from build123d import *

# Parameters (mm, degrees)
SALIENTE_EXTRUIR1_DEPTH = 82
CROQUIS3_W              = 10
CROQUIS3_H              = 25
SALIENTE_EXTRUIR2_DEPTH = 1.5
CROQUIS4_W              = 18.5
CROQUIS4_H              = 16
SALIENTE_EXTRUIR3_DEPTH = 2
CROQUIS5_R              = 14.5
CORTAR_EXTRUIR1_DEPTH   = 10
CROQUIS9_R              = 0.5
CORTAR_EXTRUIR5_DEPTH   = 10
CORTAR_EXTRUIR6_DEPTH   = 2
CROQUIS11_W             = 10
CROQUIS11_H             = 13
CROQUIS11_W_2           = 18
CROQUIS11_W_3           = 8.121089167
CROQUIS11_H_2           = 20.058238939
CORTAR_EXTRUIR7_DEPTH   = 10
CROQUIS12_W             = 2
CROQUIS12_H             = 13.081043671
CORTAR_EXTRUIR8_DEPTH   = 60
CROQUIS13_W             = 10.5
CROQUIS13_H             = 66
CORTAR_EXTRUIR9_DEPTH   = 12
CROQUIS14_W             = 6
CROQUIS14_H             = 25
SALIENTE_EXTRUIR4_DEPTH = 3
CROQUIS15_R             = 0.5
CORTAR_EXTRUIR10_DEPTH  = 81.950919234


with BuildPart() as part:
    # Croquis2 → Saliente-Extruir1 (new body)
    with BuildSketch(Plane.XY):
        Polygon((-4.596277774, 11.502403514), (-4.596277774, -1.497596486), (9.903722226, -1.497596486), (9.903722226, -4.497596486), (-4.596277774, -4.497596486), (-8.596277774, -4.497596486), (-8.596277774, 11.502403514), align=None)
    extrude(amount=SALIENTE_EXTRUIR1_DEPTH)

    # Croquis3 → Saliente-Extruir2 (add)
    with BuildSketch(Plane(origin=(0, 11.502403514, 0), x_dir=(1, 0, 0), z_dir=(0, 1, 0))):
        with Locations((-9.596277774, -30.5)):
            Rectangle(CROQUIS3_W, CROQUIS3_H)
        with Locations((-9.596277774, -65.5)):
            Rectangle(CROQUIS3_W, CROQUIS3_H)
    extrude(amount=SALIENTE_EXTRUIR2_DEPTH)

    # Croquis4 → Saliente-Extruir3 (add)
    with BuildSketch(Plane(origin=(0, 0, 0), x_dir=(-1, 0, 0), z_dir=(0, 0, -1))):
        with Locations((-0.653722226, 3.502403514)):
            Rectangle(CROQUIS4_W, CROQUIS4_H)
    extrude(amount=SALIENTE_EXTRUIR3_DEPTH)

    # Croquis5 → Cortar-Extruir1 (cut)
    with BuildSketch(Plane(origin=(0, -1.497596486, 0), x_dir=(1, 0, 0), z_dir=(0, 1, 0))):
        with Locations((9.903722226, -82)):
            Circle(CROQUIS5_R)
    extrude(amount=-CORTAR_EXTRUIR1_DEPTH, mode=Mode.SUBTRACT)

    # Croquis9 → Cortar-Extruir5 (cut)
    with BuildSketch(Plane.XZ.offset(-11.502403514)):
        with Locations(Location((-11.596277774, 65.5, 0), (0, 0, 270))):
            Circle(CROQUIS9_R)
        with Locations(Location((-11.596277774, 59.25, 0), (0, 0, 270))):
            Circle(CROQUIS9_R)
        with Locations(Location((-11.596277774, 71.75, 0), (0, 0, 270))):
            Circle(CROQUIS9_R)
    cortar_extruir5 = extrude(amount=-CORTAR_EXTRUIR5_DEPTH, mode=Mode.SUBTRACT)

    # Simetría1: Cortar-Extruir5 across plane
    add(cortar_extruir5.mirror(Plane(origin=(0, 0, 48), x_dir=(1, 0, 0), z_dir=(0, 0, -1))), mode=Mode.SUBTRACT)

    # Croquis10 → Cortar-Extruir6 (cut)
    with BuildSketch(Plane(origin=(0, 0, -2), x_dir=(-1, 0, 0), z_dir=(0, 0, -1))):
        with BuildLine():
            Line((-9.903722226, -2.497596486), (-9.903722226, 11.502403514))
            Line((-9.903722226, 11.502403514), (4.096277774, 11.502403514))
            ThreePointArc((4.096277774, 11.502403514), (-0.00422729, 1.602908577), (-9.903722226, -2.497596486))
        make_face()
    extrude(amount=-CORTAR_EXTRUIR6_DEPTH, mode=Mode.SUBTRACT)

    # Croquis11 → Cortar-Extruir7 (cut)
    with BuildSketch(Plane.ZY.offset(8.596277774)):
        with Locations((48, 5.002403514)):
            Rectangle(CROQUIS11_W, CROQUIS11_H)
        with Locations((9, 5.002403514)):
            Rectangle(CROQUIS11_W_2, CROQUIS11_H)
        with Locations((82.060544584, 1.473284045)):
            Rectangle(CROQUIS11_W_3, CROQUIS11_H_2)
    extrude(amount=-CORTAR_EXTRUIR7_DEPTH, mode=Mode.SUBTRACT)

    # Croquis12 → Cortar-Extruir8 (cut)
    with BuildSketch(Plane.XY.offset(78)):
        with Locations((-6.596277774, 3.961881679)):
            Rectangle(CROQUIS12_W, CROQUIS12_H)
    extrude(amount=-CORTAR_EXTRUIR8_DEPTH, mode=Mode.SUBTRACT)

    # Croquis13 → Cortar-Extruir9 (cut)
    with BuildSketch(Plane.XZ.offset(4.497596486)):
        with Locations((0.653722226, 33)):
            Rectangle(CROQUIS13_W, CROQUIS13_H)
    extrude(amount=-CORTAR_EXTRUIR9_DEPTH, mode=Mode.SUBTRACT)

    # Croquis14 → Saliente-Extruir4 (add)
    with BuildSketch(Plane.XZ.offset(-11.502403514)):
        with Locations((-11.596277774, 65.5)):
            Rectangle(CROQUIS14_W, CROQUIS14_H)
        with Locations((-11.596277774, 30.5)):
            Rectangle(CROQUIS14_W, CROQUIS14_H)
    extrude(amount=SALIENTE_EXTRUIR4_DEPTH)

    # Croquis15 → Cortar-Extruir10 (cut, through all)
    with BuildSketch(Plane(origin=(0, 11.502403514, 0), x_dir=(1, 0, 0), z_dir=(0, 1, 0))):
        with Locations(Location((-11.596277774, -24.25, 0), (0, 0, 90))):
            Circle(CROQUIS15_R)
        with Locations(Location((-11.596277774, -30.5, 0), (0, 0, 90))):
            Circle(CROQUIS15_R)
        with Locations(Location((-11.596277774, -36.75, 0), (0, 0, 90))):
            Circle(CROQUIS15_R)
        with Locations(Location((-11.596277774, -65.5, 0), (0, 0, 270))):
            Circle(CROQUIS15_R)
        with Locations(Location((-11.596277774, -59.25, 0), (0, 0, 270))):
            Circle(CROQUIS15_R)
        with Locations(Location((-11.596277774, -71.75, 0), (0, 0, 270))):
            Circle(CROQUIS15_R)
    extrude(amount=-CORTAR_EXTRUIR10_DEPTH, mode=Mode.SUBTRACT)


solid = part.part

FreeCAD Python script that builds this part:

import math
import FreeCAD as App
import Part
import Sketcher
from FreeCAD import Vector


def add_polygon(sketch, points):
    """Adds a closed chain of lines whose ends are joined by coincident constraints."""
    first, n = sketch.GeometryCount, len(points)
    for a, b in zip(points, points[1:] + points[:1]):
        sketch.addGeometry(Part.LineSegment(App.Vector(*a, 0), App.Vector(*b, 0)), False)
    for i in range(n):
        sketch.addConstraint(Sketcher.Constraint("Coincident", first + i, 2, first + (i + 1) % n, 1))

doc = App.newDocument("Part")
body = doc.addObject("PartDesign::Body", "Body")

# Sketch on XY plane
sketch1 = body.newObject("Sketcher::SketchObject", "Sketch")
sketch1.AttachmentSupport = (doc.getObject("XY_Plane"), [""])
sketch1.MapMode = "FlatFace"
add_polygon(sketch1, [(-4.6, -1.5), (-4.6, 11.5), (-8.6, 11.5), (-8.6, -4.5), (9.9, -4.5), (9.9, -1.5)])  # lines 0-5
sketch1.addConstraint(Sketcher.Constraint("Vertical", 0))
sketch1.addConstraint(Sketcher.Constraint("Horizontal", 1))
sketch1.addConstraint(Sketcher.Constraint("Vertical", 2))
sketch1.addConstraint(Sketcher.Constraint("Horizontal", 3))
sketch1.addConstraint(Sketcher.Constraint("Vertical", 4))
sketch1.addConstraint(Sketcher.Constraint("Horizontal", 5))
sketch1.addConstraint(Sketcher.Constraint("DistanceX", 1, 2, 1, 1, 4.0))
sketch1.addConstraint(Sketcher.Constraint("DistanceY", 0, 1, 0, 2, 13.0))
sketch1.addConstraint(Sketcher.Constraint("DistanceY", 2, 2, 2, 1, 16.0))
sketch1.addConstraint(Sketcher.Constraint("DistanceX", 3, 1, 3, 2, 18.5))
sketch1.addConstraint(Sketcher.Constraint("DistanceX", 0, 2, -1, 1, 4.596278))
sketch1.addConstraint(Sketcher.Constraint("DistanceY", -1, 1, 0, 2, 11.502404))
pad1 = body.newObject("PartDesign::Pad", "Pad")
pad1.Profile = sketch1
pad1.Length = 82

# Sketch on XZ plane
sketch2 = body.newObject("Sketcher::SketchObject", "Sketch001")
sketch2.AttachmentSupport = (doc.getObject("XZ_Plane"), [""])
sketch2.MapMode = "FlatFace"
sketch2.AttachmentOffset = App.Placement(Vector(0, 0, -11.502404), App.Rotation())
add_polygon(sketch2, [(-15, 18), (-15, 43), (-5, 43), (-5, 18)])  # lines 0-3
add_polygon(sketch2, [(-15, 53), (-15, 78), (-5, 78), (-5, 53)])  # lines 4-7
sketch2.addConstraint(Sketcher.Constraint("Vertical", 0))
sketch2.addConstraint(Sketcher.Constraint("Horizontal", 1))
sketch2.addConstraint(Sketcher.Constraint("Vertical", 2))
sketch2.addConstraint(Sketcher.Constraint("Horizontal", 3))
sketch2.addConstraint(Sketcher.Constraint("Vertical", 4))
sketch2.addConstraint(Sketcher.Constraint("Horizontal", 5))
sketch2.addConstraint(Sketcher.Constraint("Vertical", 6))
sketch2.addConstraint(Sketcher.Constraint("Horizontal", 7))
sketch2.addConstraint(Sketcher.Constraint("Vertical", 3, 2, 4, 2))
sketch2.addConstraint(Sketcher.Constraint("Vertical", 2, 2, 5, 2))
sketch2.addConstraint(Sketcher.Constraint("Equal", 2, 4))
sketch2.addConstraint(Sketcher.Constraint("DistanceX", 1, 1, 1, 2, 10.0))
sketch2.addConstraint(Sketcher.Constraint("DistanceY", 0, 1, 0, 2, 25.0))
sketch2.addConstraint(Sketcher.Constraint("DistanceY", -1, 1, 0, 2, 43.0))
sketch2.addConstraint(Sketcher.Constraint("DistanceY", -1, 1, 4, 2, 78.0))
sketch2.addConstraint(Sketcher.Constraint("DistanceX", 0, 2, -1, 1, 14.596278))
pad2 = body.newObject("PartDesign::Pad", "Pad001")
pad2.Profile = sketch2
pad2.Length = 1.5
pad2.Reversed = True

# Sketch on XY plane
sketch3 = body.newObject("Sketcher::SketchObject", "Sketch002")
sketch3.AttachmentSupport = (doc.getObject("XY_Plane"), [""])
sketch3.MapMode = "FlatFace"
add_polygon(sketch3, [(10, 12), (10, -4), (-9, -4), (-9, 12)])  # lines 0-3
sketch3.addConstraint(Sketcher.Constraint("Vertical", 0))
sketch3.addConstraint(Sketcher.Constraint("Horizontal", 1))
sketch3.addConstraint(Sketcher.Constraint("Vertical", 2))
sketch3.addConstraint(Sketcher.Constraint("Horizontal", 3))
sketch3.addConstraint(Sketcher.Constraint("DistanceY", 0, 2, 0, 1, 16.0))
sketch3.addConstraint(Sketcher.Constraint("DistanceX", 1, 2, 1, 1, 18.5))
sketch3.addConstraint(Sketcher.Constraint("DistanceX", -1, 1, 0, 2, 9.903722))
sketch3.addConstraint(Sketcher.Constraint("DistanceY", 0, 2, -1, 1, 4.497596))
pad3 = body.newObject("PartDesign::Pad", "Pad002")
pad3.Profile = sketch3
pad3.Length = 2
pad3.Reversed = True

# Sketch on XZ plane
sketch4 = body.newObject("Sketcher::SketchObject", "Sketch003")
sketch4.AttachmentSupport = (doc.getObject("XZ_Plane"), [""])
sketch4.MapMode = "FlatFace"
sketch4.AttachmentOffset = App.Placement(Vector(0, 0, 1.497596), App.Rotation())
sketch4.addGeometry(Part.Circle(Vector(10, 82, 0), Vector(0, 0, 1), 14), False)
sketch4.addConstraint(Sketcher.Constraint("Diameter", 0, 29.0))
sketch4.addConstraint(Sketcher.Constraint("DistanceY", -1, 1, 0, 3, 82.0))
sketch4.addConstraint(Sketcher.Constraint("DistanceX", -1, 1, 0, 3, 9.903722))
pocket1 = body.newObject("PartDesign::Pocket", "Pocket")
pocket1.Profile = sketch4
pocket1.Length = 10
pocket1.Reversed = True

# Sketch on XZ plane
sketch5 = body.newObject("Sketcher::SketchObject", "Sketch004")
sketch5.AttachmentSupport = (doc.getObject("XZ_Plane"), [""])
sketch5.MapMode = "FlatFace"
sketch5.AttachmentOffset = App.Placement(Vector(0, 0, -11.502404), App.Rotation())
sketch5.addGeometry(Part.Circle(Vector(-11.6, 65.5, 0), Vector(0, 0, 1), 0.5), False)
sketch5.addGeometry(Part.Circle(Vector(-11.6, 59.2, 0), Vector(0, 0, 1), 0.5), False)
sketch5.addGeometry(Part.Circle(Vector(-11.6, 71.8, 0), Vector(0, 0, 1), 0.5), False)
sketch5.addConstraint(Sketcher.Constraint("Equal", 0, 1))
sketch5.addConstraint(Sketcher.Constraint("Equal", 1, 2))
sketch5.addConstraint(Sketcher.Constraint("Vertical", 0, 3, 1, 3))
sketch5.addConstraint(Sketcher.Constraint("Vertical", 1, 3, 2, 3))
sketch5.addConstraint(Sketcher.Constraint("Diameter", 0, 1.0))
sketch5.addConstraint(Sketcher.Constraint("DistanceY", -1, 1, 0, 3, 65.5))
sketch5.addConstraint(Sketcher.Constraint("DistanceY", 1, 3, 2, 3, 12.5))
sketch5.addConstraint(Sketcher.Constraint("DistanceY", -1, 1, 1, 3, 59.25))
sketch5.addConstraint(Sketcher.Constraint("DistanceX", 0, 3, -1, 1, 11.596278))
pocket2 = body.newObject("PartDesign::Pocket", "Pocket001")
pocket2.Profile = sketch5
pocket2.Length = 10
doc.recompute()

datumplane = body.newObject("PartDesign::Plane", "DatumPlane")
datumplane.AttachmentSupport = (doc.getObject("XY_Plane"), [""])
datumplane.MapMode = "FlatFace"
datumplane.AttachmentOffset = App.Placement(Vector(0, 0, 48), App.Rotation())
mirrored = body.newObject("PartDesign::Mirrored", "Mirrored")
mirrored.Originals = [pocket2]
mirrored.MirrorPlane = (datumplane, [""])
body.Tip = mirrored

# Sketch on XY plane
sketch6 = body.newObject("Sketcher::SketchObject", "Sketch005")
sketch6.AttachmentSupport = (doc.getObject("XY_Plane"), [""])
sketch6.MapMode = "FlatFace"
sketch6.AttachmentOffset = App.Placement(Vector(0, 0, -2), App.Rotation())
sketch6.addGeometry(Part.LineSegment(Vector(10, 12, 0), Vector(10, -2, 0)), False)
sketch6.addGeometry(Part.ArcOfCircle(Part.Circle(Vector(10, 12, 0), Vector(0, 0, 1), 14), math.radians(180), math.radians(270)), False)
sketch6.addGeometry(Part.LineSegment(Vector(-4, 12, 0), Vector(10, 12, 0)), False)
sketch6.addConstraint(Sketcher.Constraint("Coincident", 0, 2, 1, 2))
sketch6.addConstraint(Sketcher.Constraint("Coincident", 1, 1, 2, 1))
sketch6.addConstraint(Sketcher.Constraint("Coincident", 2, 2, 0, 1))
sketch6.addConstraint(Sketcher.Constraint("Vertical", 0))
sketch6.addConstraint(Sketcher.Constraint("Horizontal", 2))
sketch6.addConstraint(Sketcher.Constraint("Coincident", 2, 2, 1, 3))
sketch6.addConstraint(Sketcher.Constraint("Radius", 1, 14.0))
sketch6.addConstraint(Sketcher.Constraint("DistanceX", -1, 1, 1, 3, 9.903722))
sketch6.addConstraint(Sketcher.Constraint("DistanceY", -1, 1, 1, 3, 11.502404))
pocket3 = body.newObject("PartDesign::Pocket", "Pocket002")
pocket3.Profile = sketch6
pocket3.Length = 2
pocket3.Reversed = True

# Sketch on YZ plane
sketch7 = body.newObject("Sketcher::SketchObject", "Sketch006")
sketch7.AttachmentSupport = (doc.getObject("YZ_Plane"), [""])
sketch7.MapMode = "FlatFace"
sketch7.AttachmentOffset = App.Placement(Vector(0, 0, -8.596278), App.Rotation())
add_polygon(sketch7, [(12, 43), (-1, 43), (-1, 53), (12, 53)])  # lines 0-3
add_polygon(sketch7, [(12, 0), (-1, 0), (-1, 18), (12, 18)])  # lines 4-7
add_polygon(sketch7, [(12, 78), (-9, 78), (-9, 86), (12, 86)])  # lines 8-11
sketch7.addConstraint(Sketcher.Constraint("Horizontal", 0))
sketch7.addConstraint(Sketcher.Constraint("Vertical", 1))
sketch7.addConstraint(Sketcher.Constraint("Horizontal", 2))
sketch7.addConstraint(Sketcher.Constraint("Vertical", 3))
sketch7.addConstraint(Sketcher.Constraint("Horizontal", 4))
sketch7.addConstraint(Sketcher.Constraint("Vertical", 5))
sketch7.addConstraint(Sketcher.Constraint("Horizontal", 6))
sketch7.addConstraint(Sketcher.Constraint("Vertical", 7))
sketch7.addConstraint(Sketcher.Constraint("Horizontal", 8))
sketch7.addConstraint(Sketcher.Constraint("Vertical", 9))
sketch7.addConstraint(Sketcher.Constraint("Horizontal", 10))
sketch7.addConstraint(Sketcher.Constraint("Vertical", 11))
sketch7.addConstraint(Sketcher.Constraint("PointOnObject", 4, 2, -1))
sketch7.addConstraint(Sketcher.Constraint("Vertical", 1, 2, 4, 2))
sketch7.addConstraint(Sketcher.Constraint("Vertical", 3, 2, 6, 2))
sketch7.addConstraint(Sketcher.Constraint("Vertical", 7, 2, 10, 2))
sketch7.addConstraint(Sketcher.Constraint("DistanceX", 0, 2, 0, 1, 13.0))
sketch7.addConstraint(Sketcher.Constraint("DistanceY", 1, 1, 1, 2, 10.0))
sketch7.addConstraint(Sketcher.Constraint("DistanceY", 5, 1, 5, 2, 18.0))
sketch7.addConstraint(Sketcher.Constraint("DistanceY", -1, 1, 0, 2, 43.0))
sketch7.addConstraint(Sketcher.Constraint("DistanceY", -1, 1, 8, 2, 78.0))
sketch7.addConstraint(Sketcher.Constraint("DistanceX", 8, 2, 8, 1, 20.058239))
sketch7.addConstraint(Sketcher.Constraint("DistanceY", 9, 1, 9, 2, 8.121089))
sketch7.addConstraint(Sketcher.Constraint("DistanceX", 0, 2, -1, 1, 1.497596))
pocket4 = body.newObject("PartDesign::Pocket", "Pocket003")
pocket4.Profile = sketch7
pocket4.Length = 10
pocket4.Reversed = True

# Sketch on XY plane
sketch8 = body.newObject("Sketcher::SketchObject", "Sketch007")
sketch8.AttachmentSupport = (doc.getObject("XY_Plane"), [""])
sketch8.MapMode = "FlatFace"
sketch8.AttachmentOffset = App.Placement(Vector(0, 0, 78), App.Rotation())
add_polygon(sketch8, [(-7.6, 10.5), (-7.6, -2.6), (-5.6, -2.6), (-5.6, 10.5)])  # lines 0-3
sketch8.addConstraint(Sketcher.Constraint("Vertical", 0))
sketch8.addConstraint(Sketcher.Constraint("Horizontal", 1))
sketch8.addConstraint(Sketcher.Constraint("Vertical", 2))
sketch8.addConstraint(Sketcher.Constraint("Horizontal", 3))
sketch8.addConstraint(Sketcher.Constraint("DistanceX", 1, 1, 1, 2, 2.0))
sketch8.addConstraint(Sketcher.Constraint("DistanceY", 0, 2, 0, 1, 13.081044))
sketch8.addConstraint(Sketcher.Constraint("DistanceY", 0, 2, -1, 1, 2.57864))
sketch8.addConstraint(Sketcher.Constraint("DistanceX", 0, 2, -1, 1, 7.596278))
pocket5 = body.newObject("PartDesign::Pocket", "Pocket004")
pocket5.Profile = sketch8
pocket5.Length = 60

# Sketch on XZ plane
sketch9 = body.newObject("Sketcher::SketchObject", "Sketch008")
sketch9.AttachmentSupport = (doc.getObject("XZ_Plane"), [""])
sketch9.MapMode = "FlatFace"
sketch9.AttachmentOffset = App.Placement(Vector(0, 0, 4.497596), App.Rotation())
add_polygon(sketch9, [(-5, 66), (-5, 0), (6, 0), (6, 66)])  # lines 0-3
sketch9.addConstraint(Sketcher.Constraint("Vertical", 0))
sketch9.addConstraint(Sketcher.Constraint("Horizontal", 1))
sketch9.addConstraint(Sketcher.Constraint("Vertical", 2))
sketch9.addConstraint(Sketcher.Constraint("Horizontal", 3))
sketch9.addConstraint(Sketcher.Constraint("PointOnObject", 0, 2, -1))
sketch9.addConstraint(Sketcher.Constraint("DistanceY", 0, 2, 0, 1, 66.0))
sketch9.addConstraint(Sketcher.Constraint("DistanceX", 1, 1, 1, 2, 10.5))
sketch9.addConstraint(Sketcher.Constraint("DistanceX", 0, 2, -1, 1, 4.596278))
pocket6 = body.newObject("PartDesign::Pocket", "Pocket005")
pocket6.Profile = sketch9
pocket6.Length = 12

# Sketch on XZ plane
sketch10 = body.newObject("Sketcher::SketchObject", "Sketch009")
sketch10.AttachmentSupport = (doc.getObject("XZ_Plane"), [""])
sketch10.MapMode = "FlatFace"
sketch10.AttachmentOffset = App.Placement(Vector(0, 0, -11.502404), App.Rotation())
add_polygon(sketch10, [(-15, 78), (-15, 53), (-9, 53), (-9, 78)])  # lines 0-3
add_polygon(sketch10, [(-15, 43), (-15, 18), (-9, 18), (-9, 43)])  # lines 4-7
sketch10.addConstraint(Sketcher.Constraint("Vertical", 0))
sketch10.addConstraint(Sketcher.Constraint("Horizontal", 1))
sketch10.addConstraint(Sketcher.Constraint("Vertical", 2))
sketch10.addConstraint(Sketcher.Constraint("Horizontal", 3))
sketch10.addConstraint(Sketcher.Constraint("Vertical", 4))
sketch10.addConstraint(Sketcher.Constraint("Horizontal", 5))
sketch10.addConstraint(Sketcher.Constraint("Vertical", 6))
sketch10.addConstraint(Sketcher.Constraint("Horizontal", 7))
sketch10.addConstraint(Sketcher.Constraint("Vertical", 3, 2, 4, 2))
sketch10.addConstraint(Sketcher.Constraint("Vertical", 2, 2, 5, 2))
sketch10.addConstraint(Sketcher.Constraint("Equal", 2, 4))
sketch10.addConstraint(Sketcher.Constraint("DistanceX", 1, 1, 1, 2, 6.0))
sketch10.addConstraint(Sketcher.Constraint("DistanceY", 0, 2, 0, 1, 25.0))
sketch10.addConstraint(Sketcher.Constraint("DistanceY", -1, 1, 0, 2, 53.0))
sketch10.addConstraint(Sketcher.Constraint("DistanceY", -1, 1, 4, 2, 18.0))
sketch10.addConstraint(Sketcher.Constraint("DistanceX", 0, 2, -1, 1, 14.596278))
pad4 = body.newObject("PartDesign::Pad", "Pad003")
pad4.Profile = sketch10
pad4.Length = 3

# Sketch on XZ plane
sketch11 = body.newObject("Sketcher::SketchObject", "Sketch010")
sketch11.AttachmentSupport = (doc.getObject("XZ_Plane"), [""])
sketch11.MapMode = "FlatFace"
sketch11.AttachmentOffset = App.Placement(Vector(0, 0, -11.502404), App.Rotation())
sketch11.addGeometry(Part.Circle(Vector(-11.6, 24.2, 0), Vector(0, 0, 1), 0.5), False)
sketch11.addGeometry(Part.Circle(Vector(-11.6, 30.5, 0), Vector(0, 0, 1), 0.5), False)
sketch11.addGeometry(Part.Circle(Vector(-11.6, 36.8, 0), Vector(0, 0, 1), 0.5), False)
sketch11.addGeometry(Part.Circle(Vector(-11.6, 65.5, 0), Vector(0, 0, 1), 0.5), False)
sketch11.addGeometry(Part.Circle(Vector(-11.6, 59.2, 0), Vector(0, 0, 1), 0.5), False)
sketch11.addGeometry(Part.Circle(Vector(-11.6, 71.8, 0), Vector(0, 0, 1), 0.5), False)
sketch11.addConstraint(Sketcher.Constraint("Equal", 0, 1))
sketch11.addConstraint(Sketcher.Constraint("Equal", 1, 2))
sketch11.addConstraint(Sketcher.Constraint("Equal", 2, 3))
sketch11.addConstraint(Sketcher.Constraint("Equal", 3, 4))
sketch11.addConstraint(Sketcher.Constraint("Equal", 4, 5))
sketch11.addConstraint(Sketcher.Constraint("Vertical", 0, 3, 1, 3))
sketch11.addConstraint(Sketcher.Constraint("Vertical", 1, 3, 2, 3))
sketch11.addConstraint(Sketcher.Constraint("Vertical", 2, 3, 3, 3))
sketch11.addConstraint(Sketcher.Constraint("Vertical", 3, 3, 4, 3))
sketch11.addConstraint(Sketcher.Constraint("Vertical", 4, 3, 5, 3))
sketch11.addConstraint(Sketcher.Constraint("Diameter", 0, 1.0))
sketch11.addConstraint(Sketcher.Constraint("DistanceY", 1, 3, 3, 3, 35.0))
sketch11.addConstraint(Sketcher.Constraint("DistanceY", 0, 3, 4, 3, 35.0))
sketch11.addConstraint(Sketcher.Constraint("DistanceY", 2, 3, 5, 3, 35.0))
sketch11.addConstraint(Sketcher.Constraint("DistanceY", -1, 1, 1, 3, 30.5))
sketch11.addConstraint(Sketcher.Constraint("DistanceY", 0, 3, 2, 3, 12.5))
sketch11.addConstraint(Sketcher.Constraint("DistanceY", -1, 1, 0, 3, 24.25))
sketch11.addConstraint(Sketcher.Constraint("DistanceX", 0, 3, -1, 1, 11.596278))
pocket7 = body.newObject("PartDesign::Pocket", "Pocket006")
pocket7.Profile = sketch11
pocket7.Type = "ThroughAll"
pocket7.Reversed = True

doc.recompute()
